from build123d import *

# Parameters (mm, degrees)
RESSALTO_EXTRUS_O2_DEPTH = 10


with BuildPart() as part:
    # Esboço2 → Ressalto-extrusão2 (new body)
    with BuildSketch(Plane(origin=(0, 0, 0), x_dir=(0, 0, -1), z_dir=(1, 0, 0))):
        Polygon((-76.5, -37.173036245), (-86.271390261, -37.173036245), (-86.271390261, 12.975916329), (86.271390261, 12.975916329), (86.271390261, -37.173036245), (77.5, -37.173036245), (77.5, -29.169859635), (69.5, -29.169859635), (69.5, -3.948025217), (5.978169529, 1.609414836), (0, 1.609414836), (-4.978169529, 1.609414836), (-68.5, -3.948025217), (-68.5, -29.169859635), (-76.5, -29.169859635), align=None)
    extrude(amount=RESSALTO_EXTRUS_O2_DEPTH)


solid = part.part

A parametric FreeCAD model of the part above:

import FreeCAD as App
import Part
import Sketcher
from FreeCAD import Vector
Q = App.Units.Quantity


def add_polygon(sketch, points):
    """Adds a closed chain of lines whose ends are joined by coincident constraints."""
    first, n = sketch.GeometryCount, len(points)
    for a, b in zip(points, points[1:] + points[:1]):
        sketch.addGeometry(Part.LineSegment(App.Vector(*a, 0), App.Vector(*b, 0)), False)
    for i in range(n):
        sketch.addConstraint(Sketcher.Constraint("Coincident", first + i, 2, first + (i + 1) % n, 1))

doc = App.newDocument("Part")
params = doc.addObject("Spreadsheet::Sheet", "Params")
for row, (alias, value) in enumerate([
    ("sketch1_height", "8 mm"),
    ("pad1_length", "10 mm"),
], start=1):
    params.set(f"A{row}", alias)
    params.set(f"B{row}", "=" + value)
    params.setAlias(f"B{row}", alias)

body = doc.addObject("PartDesign::Body", "Body")

# Sketch on YZ plane
sketch1 = body.newObject("Sketcher::SketchObject", "Sketch")
sketch1.AttachmentSupport = (doc.getObject("YZ_Plane"), [""])
sketch1.MapMode = "FlatFace"
add_polygon(sketch1, [(-37, 86), (-37, 76), (-29, 76), (-29, 68), (-4, 68), (2, 5), (2, -6), (-4, -70), (-29, -70), (-29, -78), (-37, -78), (-37, -86), (13, -86), (13, 86)])  # lines 0-13
sketch1.addConstraint([
    Sketcher.Constraint("Vertical", 0),
    Sketcher.Constraint("Horizontal", 1),
    Sketcher.Constraint("Vertical", 2),
    Sketcher.Constraint("Horizontal", 3),
    Sketcher.Constraint("Vertical", 5),
    Sketcher.Constraint("Horizontal", 7),
    Sketcher.Constraint("Vertical", 8),
    Sketcher.Constraint("Horizontal", 9),
    Sketcher.Constraint("Vertical", 10),
    Sketcher.Constraint("Horizontal", 11),
    Sketcher.Constraint("Vertical", 12),
    Sketcher.Constraint("Horizontal", 13),
    Sketcher.Constraint("Symmetric", 10, 2, 13, 2, -1),
    Sketcher.Constraint("Vertical", 3, 2, 6, 2),
    Sketcher.Constraint("Vertical", 2, 2, 7, 2),
    Sketcher.Constraint("Equal", 2, 8),
    Sketcher.Constraint("Equal", 4, 6),
    Sketcher.Constraint("DistanceY", 2, 2, 2, 1, 8.0),
    Sketcher.Constraint("Angle", 4, Q("-85 deg")),
    Sketcher.Constraint("DistanceY", 6, 2, 3, 2, 138.0),
    Sketcher.Constraint("DistanceY", -1, 1, 0, 2, 76.5),
    Sketcher.Constraint("DistanceY", 0, 2, 0, 1, 9.77139),
    Sketcher.Constraint("DistanceY", 5, 2, 5, 1, 10.956339),
    Sketcher.Constraint("DistanceX", 4, 2, 12, 2, 11.366501),
    Sketcher.Constraint("DistanceX", 1, 1, 1, 2, 8.003177),
    Sketcher.Constraint("DistanceX", 3, 1, 3, 2, 25.221834),
    Sketcher.Constraint("DistanceX", 1, 2, -1, 1, 29.16986),
])
sketch1.setExpression("Constraints[31]", "Params.sketch1_height")
pad1 = body.newObject("PartDesign::Pad", "Pad")
pad1.Profile = sketch1
pad1.setExpression("Length", "Params.pad1_length")

doc.recompute()
